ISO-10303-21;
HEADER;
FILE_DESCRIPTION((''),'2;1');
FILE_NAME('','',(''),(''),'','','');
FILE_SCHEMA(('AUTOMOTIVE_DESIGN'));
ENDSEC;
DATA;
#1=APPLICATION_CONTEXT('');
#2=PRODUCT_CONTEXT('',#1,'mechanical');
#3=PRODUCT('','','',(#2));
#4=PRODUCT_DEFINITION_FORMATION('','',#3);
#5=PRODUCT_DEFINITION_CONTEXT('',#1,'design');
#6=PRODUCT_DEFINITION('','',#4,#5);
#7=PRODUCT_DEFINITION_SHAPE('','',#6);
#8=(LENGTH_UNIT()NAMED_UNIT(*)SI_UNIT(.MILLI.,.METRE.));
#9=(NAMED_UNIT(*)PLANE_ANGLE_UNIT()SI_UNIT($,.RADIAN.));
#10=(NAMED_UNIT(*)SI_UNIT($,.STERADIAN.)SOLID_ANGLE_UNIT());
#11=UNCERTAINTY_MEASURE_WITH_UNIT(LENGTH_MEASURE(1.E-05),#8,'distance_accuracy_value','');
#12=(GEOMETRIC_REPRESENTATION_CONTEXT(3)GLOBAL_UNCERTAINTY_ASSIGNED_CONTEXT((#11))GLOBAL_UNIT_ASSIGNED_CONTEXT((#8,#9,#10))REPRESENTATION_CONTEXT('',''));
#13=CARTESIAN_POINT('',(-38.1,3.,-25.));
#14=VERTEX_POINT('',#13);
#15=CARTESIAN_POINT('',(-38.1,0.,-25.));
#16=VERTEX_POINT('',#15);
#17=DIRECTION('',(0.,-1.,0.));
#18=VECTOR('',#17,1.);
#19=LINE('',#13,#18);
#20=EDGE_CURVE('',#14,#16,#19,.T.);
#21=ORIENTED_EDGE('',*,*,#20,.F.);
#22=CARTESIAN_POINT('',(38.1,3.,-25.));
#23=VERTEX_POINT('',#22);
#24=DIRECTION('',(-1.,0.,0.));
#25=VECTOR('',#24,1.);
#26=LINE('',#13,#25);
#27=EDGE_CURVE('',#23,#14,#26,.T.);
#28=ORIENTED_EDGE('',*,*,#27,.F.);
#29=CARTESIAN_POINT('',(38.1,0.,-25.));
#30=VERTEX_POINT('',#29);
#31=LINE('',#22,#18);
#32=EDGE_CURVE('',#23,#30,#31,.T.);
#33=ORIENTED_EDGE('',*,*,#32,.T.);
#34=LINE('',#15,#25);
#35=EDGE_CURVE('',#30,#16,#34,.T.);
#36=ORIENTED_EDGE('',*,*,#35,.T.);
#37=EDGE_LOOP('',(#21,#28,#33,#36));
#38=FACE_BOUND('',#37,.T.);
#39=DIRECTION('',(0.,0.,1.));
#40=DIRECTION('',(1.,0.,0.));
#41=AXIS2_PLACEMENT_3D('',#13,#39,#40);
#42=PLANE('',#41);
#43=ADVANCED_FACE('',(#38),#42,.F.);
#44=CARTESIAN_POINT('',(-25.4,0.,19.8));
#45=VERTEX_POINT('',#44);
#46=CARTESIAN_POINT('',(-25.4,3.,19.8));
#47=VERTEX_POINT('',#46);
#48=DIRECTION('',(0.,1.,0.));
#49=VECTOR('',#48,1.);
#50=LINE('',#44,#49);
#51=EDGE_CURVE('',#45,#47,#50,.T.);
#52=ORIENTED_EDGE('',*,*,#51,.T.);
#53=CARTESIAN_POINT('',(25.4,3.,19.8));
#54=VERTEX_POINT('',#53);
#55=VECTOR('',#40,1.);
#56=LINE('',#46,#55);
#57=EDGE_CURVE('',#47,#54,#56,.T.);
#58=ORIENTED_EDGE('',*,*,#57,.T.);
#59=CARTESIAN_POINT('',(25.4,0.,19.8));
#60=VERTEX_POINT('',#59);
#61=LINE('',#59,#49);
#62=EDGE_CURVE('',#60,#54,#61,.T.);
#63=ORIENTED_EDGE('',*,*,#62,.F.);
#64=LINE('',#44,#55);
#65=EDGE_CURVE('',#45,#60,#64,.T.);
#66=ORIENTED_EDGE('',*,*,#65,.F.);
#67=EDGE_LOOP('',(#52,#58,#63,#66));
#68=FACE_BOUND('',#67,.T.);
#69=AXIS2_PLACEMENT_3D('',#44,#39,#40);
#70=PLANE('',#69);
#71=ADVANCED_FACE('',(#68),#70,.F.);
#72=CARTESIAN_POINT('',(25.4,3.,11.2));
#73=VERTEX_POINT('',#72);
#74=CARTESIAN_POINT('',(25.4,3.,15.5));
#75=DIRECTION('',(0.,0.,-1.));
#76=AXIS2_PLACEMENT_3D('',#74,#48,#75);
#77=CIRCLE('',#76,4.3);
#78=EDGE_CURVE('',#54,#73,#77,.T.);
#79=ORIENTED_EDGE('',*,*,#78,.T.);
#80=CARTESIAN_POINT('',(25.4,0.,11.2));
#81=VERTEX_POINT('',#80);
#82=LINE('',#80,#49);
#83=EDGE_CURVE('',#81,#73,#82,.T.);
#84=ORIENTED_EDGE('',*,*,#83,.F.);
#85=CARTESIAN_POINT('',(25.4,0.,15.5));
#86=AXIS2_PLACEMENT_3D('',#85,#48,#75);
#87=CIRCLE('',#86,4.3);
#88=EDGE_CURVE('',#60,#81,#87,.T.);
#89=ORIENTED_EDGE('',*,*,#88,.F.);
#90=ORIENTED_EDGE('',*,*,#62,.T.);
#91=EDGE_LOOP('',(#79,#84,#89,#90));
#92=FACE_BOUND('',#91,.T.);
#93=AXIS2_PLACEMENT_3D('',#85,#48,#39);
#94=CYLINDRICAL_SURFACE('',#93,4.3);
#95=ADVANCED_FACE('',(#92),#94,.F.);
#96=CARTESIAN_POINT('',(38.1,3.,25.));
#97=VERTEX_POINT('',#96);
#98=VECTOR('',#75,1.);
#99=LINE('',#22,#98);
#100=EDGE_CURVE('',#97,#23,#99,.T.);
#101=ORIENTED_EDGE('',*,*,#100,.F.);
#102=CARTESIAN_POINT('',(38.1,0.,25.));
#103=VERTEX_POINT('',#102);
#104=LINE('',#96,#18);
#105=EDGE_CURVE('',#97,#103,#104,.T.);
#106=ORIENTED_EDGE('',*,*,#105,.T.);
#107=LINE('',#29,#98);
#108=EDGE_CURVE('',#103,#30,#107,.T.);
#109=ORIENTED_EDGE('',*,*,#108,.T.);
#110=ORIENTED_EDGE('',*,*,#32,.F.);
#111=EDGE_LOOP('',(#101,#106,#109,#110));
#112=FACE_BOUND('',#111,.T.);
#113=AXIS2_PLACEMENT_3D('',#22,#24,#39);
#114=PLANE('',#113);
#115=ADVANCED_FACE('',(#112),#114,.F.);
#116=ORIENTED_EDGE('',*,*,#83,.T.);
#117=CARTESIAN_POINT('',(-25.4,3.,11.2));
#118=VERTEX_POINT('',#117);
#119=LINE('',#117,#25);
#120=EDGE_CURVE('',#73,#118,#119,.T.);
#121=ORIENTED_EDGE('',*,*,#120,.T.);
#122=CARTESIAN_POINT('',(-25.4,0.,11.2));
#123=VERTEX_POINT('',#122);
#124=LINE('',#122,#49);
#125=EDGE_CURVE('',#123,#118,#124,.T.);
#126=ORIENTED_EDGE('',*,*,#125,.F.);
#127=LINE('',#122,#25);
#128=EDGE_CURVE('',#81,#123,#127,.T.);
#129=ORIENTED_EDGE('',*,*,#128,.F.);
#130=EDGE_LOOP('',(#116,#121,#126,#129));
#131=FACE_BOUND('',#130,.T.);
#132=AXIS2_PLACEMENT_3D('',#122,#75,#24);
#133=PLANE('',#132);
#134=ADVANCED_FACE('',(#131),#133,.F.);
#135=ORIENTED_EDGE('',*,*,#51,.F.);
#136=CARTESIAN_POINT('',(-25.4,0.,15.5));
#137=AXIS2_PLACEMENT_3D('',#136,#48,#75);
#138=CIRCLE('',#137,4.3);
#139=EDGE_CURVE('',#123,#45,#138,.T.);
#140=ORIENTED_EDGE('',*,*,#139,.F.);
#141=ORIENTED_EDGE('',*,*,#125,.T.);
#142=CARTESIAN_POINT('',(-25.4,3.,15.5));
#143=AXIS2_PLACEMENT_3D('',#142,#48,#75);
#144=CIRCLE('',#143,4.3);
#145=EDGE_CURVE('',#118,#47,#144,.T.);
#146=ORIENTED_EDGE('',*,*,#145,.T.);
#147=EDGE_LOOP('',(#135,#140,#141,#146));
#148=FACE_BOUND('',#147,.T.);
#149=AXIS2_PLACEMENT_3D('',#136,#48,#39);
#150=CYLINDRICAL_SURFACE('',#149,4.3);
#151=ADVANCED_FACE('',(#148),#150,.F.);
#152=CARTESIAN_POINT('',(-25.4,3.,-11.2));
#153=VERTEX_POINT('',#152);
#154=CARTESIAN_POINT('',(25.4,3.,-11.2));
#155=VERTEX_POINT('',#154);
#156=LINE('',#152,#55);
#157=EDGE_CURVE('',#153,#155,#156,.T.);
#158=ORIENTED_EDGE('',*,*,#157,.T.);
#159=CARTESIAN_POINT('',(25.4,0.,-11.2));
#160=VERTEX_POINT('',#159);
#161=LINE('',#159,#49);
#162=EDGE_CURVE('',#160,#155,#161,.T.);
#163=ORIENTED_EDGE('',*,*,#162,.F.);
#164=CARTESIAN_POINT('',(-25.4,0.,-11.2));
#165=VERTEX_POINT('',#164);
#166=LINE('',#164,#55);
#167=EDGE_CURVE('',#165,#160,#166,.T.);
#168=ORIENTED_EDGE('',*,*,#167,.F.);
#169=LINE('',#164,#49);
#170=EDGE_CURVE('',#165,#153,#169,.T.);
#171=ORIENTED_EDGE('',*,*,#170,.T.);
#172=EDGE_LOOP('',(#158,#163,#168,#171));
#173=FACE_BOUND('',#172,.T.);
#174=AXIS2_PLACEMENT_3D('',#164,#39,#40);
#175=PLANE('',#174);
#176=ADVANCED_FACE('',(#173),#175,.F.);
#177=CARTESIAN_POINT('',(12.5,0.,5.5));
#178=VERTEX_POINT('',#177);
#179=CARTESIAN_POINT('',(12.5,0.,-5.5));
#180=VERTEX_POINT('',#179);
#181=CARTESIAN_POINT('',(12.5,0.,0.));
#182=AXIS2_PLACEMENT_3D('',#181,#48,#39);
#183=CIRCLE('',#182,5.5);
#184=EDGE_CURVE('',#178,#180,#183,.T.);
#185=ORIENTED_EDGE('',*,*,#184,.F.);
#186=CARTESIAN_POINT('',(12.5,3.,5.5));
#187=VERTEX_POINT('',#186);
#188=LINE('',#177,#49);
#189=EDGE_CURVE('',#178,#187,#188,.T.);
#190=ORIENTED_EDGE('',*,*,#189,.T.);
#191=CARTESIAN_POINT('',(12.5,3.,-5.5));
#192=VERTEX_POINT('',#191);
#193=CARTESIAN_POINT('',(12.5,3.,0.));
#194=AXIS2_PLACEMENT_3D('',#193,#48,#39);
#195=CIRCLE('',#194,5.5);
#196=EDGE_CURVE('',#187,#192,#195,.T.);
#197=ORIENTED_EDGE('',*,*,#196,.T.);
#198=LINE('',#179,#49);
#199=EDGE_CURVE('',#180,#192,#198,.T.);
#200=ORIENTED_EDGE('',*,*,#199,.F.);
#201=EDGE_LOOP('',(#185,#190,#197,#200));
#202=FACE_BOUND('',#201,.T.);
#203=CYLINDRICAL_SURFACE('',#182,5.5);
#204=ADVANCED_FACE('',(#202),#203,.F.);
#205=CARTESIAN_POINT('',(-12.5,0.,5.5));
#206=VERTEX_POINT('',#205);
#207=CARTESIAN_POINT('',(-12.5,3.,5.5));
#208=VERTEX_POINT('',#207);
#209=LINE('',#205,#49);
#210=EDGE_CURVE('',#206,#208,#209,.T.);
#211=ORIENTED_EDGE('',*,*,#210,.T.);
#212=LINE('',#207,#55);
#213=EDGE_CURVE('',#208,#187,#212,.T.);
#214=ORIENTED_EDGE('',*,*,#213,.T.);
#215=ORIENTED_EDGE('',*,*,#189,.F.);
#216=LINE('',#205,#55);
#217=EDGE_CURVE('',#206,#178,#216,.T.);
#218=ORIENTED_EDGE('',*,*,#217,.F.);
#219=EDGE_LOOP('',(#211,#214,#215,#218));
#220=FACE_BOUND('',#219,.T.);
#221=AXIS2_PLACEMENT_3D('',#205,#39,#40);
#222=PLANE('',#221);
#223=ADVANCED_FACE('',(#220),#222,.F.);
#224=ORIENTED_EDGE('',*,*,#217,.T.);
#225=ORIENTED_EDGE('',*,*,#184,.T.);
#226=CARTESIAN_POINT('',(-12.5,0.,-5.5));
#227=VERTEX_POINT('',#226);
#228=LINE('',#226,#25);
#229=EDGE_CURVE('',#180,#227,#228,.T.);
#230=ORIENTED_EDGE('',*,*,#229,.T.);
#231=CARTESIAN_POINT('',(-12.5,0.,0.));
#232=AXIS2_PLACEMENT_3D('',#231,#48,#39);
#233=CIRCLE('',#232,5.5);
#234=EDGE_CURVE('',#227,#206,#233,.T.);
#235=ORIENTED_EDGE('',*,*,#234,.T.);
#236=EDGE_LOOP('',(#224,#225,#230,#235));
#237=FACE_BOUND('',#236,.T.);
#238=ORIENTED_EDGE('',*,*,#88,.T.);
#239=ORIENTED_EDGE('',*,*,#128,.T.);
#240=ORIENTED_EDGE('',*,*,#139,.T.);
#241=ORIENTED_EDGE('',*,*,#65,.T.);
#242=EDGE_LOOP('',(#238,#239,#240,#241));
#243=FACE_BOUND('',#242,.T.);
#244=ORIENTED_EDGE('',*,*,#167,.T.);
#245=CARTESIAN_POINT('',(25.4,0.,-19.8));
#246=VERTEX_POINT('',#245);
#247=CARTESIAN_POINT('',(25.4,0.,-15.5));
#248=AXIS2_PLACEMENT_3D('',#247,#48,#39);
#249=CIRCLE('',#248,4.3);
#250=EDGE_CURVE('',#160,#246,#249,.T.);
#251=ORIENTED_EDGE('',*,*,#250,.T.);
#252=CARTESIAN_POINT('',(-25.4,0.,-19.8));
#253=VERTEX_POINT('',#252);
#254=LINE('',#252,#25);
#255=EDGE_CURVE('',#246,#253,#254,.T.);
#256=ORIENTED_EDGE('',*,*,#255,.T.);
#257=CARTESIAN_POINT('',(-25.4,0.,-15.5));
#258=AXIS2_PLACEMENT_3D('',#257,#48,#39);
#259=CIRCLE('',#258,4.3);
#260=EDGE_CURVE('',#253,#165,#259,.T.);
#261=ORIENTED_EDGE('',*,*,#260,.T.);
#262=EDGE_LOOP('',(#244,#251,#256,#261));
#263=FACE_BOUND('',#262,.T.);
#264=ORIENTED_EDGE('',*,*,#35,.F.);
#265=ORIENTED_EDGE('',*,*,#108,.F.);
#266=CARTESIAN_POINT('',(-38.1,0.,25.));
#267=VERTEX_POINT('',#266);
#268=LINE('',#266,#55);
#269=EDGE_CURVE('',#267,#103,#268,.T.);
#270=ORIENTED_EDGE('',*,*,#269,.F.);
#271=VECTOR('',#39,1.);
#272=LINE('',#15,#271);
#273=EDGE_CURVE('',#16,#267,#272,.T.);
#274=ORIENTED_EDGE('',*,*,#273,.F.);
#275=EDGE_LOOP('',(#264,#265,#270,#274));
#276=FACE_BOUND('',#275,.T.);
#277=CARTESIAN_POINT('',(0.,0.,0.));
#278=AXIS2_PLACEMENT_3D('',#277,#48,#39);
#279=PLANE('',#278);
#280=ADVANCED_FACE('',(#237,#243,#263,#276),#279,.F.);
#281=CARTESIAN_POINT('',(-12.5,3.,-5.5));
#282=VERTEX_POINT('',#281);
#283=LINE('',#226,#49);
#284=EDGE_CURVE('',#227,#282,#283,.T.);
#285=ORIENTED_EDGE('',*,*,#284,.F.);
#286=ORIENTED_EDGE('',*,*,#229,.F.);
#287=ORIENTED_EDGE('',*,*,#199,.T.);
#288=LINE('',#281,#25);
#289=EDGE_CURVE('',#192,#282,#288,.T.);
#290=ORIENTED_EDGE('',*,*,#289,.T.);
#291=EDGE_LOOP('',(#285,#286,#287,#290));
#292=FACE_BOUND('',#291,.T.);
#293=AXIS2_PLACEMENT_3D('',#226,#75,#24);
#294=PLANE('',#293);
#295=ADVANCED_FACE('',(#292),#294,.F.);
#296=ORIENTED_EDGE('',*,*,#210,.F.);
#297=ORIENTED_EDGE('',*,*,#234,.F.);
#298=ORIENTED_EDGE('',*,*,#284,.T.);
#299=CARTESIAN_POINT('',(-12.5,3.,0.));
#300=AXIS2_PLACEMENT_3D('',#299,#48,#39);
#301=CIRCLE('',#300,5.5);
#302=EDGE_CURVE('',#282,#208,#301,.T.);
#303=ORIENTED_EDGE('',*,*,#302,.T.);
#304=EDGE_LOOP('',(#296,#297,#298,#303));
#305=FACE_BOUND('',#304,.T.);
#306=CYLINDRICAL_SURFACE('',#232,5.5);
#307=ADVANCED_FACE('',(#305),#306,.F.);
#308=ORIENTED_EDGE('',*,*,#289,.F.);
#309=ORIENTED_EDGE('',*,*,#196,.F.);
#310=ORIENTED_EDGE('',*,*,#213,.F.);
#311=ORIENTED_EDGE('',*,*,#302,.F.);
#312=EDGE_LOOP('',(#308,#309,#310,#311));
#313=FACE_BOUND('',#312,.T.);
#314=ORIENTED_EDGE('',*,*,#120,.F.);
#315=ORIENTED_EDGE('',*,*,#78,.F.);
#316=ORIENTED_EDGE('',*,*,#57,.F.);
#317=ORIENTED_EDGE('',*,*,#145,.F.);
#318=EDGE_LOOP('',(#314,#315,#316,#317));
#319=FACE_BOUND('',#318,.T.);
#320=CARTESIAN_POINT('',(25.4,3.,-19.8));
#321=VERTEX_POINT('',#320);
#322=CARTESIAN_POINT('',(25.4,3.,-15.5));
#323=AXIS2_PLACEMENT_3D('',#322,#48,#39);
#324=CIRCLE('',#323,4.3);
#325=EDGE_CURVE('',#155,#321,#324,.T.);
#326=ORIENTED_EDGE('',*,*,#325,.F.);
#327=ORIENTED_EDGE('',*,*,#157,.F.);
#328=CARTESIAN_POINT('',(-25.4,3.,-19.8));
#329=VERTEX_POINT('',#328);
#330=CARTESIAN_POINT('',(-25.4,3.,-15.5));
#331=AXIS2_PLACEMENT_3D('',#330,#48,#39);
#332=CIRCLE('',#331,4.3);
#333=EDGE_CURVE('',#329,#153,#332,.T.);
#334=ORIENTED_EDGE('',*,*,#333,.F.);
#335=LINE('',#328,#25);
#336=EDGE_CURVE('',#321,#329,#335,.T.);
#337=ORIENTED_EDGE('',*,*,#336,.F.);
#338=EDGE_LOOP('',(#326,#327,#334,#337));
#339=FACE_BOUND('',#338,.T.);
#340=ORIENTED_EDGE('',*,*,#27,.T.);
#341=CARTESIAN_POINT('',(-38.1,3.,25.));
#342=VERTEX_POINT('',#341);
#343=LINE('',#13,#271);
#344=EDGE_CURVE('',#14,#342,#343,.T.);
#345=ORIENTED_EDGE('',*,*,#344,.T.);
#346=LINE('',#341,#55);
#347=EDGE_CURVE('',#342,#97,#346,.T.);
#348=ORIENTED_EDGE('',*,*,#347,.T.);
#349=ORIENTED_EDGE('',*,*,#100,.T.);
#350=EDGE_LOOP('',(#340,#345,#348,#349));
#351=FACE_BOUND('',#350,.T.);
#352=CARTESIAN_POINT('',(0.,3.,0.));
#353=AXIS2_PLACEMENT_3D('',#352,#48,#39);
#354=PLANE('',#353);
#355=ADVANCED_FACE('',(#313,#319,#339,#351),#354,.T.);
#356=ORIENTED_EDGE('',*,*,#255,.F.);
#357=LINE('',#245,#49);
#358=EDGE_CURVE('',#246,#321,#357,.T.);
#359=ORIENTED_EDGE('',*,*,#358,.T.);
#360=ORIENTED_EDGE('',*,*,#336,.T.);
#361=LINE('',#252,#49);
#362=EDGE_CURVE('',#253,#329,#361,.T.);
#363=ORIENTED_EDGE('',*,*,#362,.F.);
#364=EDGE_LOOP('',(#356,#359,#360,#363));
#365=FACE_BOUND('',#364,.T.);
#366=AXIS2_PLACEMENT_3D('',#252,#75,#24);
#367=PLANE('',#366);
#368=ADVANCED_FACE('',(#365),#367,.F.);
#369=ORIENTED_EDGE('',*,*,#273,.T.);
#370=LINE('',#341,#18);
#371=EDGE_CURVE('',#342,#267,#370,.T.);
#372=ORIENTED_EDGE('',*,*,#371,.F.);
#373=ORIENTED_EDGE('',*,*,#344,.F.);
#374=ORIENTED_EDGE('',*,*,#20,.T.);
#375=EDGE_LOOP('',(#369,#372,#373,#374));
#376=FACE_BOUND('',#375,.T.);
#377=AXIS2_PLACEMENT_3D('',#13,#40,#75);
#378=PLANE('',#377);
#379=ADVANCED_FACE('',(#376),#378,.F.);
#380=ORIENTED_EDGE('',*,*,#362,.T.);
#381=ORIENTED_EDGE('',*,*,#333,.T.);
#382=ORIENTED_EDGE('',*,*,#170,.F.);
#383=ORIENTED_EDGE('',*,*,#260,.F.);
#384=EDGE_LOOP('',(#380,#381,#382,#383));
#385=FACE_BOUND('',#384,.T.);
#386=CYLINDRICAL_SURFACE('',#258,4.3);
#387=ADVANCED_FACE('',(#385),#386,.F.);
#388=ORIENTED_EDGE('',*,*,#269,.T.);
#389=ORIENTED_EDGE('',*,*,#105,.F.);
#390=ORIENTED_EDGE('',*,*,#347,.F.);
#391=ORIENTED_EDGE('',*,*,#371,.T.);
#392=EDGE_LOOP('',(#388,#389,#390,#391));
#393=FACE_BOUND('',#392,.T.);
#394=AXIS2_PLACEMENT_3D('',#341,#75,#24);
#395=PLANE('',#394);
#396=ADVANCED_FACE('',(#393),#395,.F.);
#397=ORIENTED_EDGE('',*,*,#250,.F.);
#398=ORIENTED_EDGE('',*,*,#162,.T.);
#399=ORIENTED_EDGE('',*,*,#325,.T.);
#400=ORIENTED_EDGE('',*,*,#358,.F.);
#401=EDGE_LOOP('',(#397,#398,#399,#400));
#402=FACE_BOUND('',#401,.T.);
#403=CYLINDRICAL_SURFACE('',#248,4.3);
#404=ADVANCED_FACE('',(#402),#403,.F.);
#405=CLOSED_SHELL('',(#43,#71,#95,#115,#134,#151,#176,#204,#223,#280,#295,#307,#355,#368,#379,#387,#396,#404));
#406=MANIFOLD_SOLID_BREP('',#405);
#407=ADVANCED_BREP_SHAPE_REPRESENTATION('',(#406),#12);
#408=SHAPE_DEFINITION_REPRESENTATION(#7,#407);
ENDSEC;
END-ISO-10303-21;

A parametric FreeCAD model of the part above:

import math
import FreeCAD as App
import Part
import Sketcher
from FreeCAD import Vector
Q = App.Units.Quantity


def add_polygon(sketch, points):
    """Adds a closed chain of lines whose ends are joined by coincident constraints."""
    first, n = sketch.GeometryCount, len(points)
    for a, b in zip(points, points[1:] + points[:1]):
        sketch.addGeometry(Part.LineSegment(App.Vector(*a, 0), App.Vector(*b, 0)), False)
    for i in range(n):
        sketch.addConstraint(Sketcher.Constraint("Coincident", first + i, 2, first + (i + 1) % n, 1))

doc = App.newDocument("Part")
body = doc.addObject("PartDesign::Body", "Body")

# Sketch on XZ plane
sketch1 = doc.addObject("Sketcher::SketchObject", "Sketch")
body.addObject(sketch1)
sketch1.AttachmentSupport = (doc.XZ_Plane, [""])
sketch1.MapMode = "FlatFace"
add_polygon(sketch1, [(-38, -25), (-38, 25), (38, 25), (38, -25)])  # lines 0-3
sketch1.addConstraint(Sketcher.Constraint("Vertical", 0))
sketch1.addConstraint(Sketcher.Constraint("Horizontal", 1))
sketch1.addConstraint(Sketcher.Constraint("Vertical", 2))
sketch1.addConstraint(Sketcher.Constraint("Horizontal", 3))
sketch1.addConstraint(Sketcher.Constraint("Symmetric", 0, 2, 2, 2, -1, 1))
sketch1.addConstraint(Sketcher.Constraint("DistanceY", 0, 1, 0, 2, Q("50 mm")))
sketch1.addConstraint(Sketcher.Constraint("DistanceX", 1, 1, 1, 2, Q("76.2 mm")))
pad1 = doc.addObject("PartDesign::Pad", "Pad")
body.addObject(pad1)
pad1.Profile = sketch1
pad1.Length = 3
pad1.Reversed = True

# Sketch on XZ plane
sketch2 = doc.addObject("Sketcher::SketchObject", "Sketch001")
body.addObject(sketch2)
sketch2.AttachmentSupport = (doc.XZ_Plane, [""])
sketch2.MapMode = "FlatFace"
sketch2.AttachmentOffset = App.Placement(Vector(0, 0, -3), App.Rotation())
sketch2.addGeometry(Part.LineSegment(Vector(25.4, -19.8, 0), Vector(-25.4, -19.8, 0)), False)
sketch2.addGeometry(Part.ArcOfCircle(Part.Circle(Vector(-25.4, -15.5, 0), Vector(0, 0, 1), 4.3), math.radians(90), math.radians(270)), False)
sketch2.addGeometry(Part.LineSegment(Vector(-25.4, -11.2, 0), Vector(25.4, -11.2, 0)), False)
sketch2.addGeometry(Part.ArcOfCircle(Part.Circle(Vector(25.4, -15.5, 0), Vector(0, 0, 1), 4.3), math.radians(-90), math.radians(90)), False)
sketch2.addGeometry(Part.LineSegment(Vector(-25.4, 19.8, 0), Vector(25.4, 19.8, 0)), False)
sketch2.addGeometry(Part.ArcOfCircle(Part.Circle(Vector(25.4, 15.5, 0), Vector(0, 0, 1), 4.3), math.radians(-90), math.radians(90)), False)
sketch2.addGeometry(Part.LineSegment(Vector(25.4, 11.2, 0), Vector(-25.4, 11.2, 0)), False)
sketch2.addGeometry(Part.ArcOfCircle(Part.Circle(Vector(-25.4, 15.5, 0), Vector(0, 0, 1), 4.3), math.radians(90), math.radians(270)), False)
sketch2.addGeometry(Part.LineSegment(Vector(12.5, -5.5, 0), Vector(-12.5, -5.5, 0)), False)
sketch2.addGeometry(Part.ArcOfCircle(Part.Circle(Vector(-12.5, 0, 0), Vector(0, 0, 1), 5.5), math.radians(90), math.radians(270)), False)
sketch2.addGeometry(Part.LineSegment(Vector(-12.5, 5.5, 0), Vector(12.5, 5.5, 0)), False)
sketch2.addGeometry(Part.ArcOfCircle(Part.Circle(Vector(12.5, 0, 0), Vector(0, 0, 1), 5.5), math.radians(-90), math.radians(90)), False)
sketch2.addConstraint(Sketcher.Constraint("Tangent", 0, 2, 1, 2))
sketch2.addConstraint(Sketcher.Constraint("Tangent", 1, 1, 2, 1))
sketch2.addConstraint(Sketcher.Constraint("Tangent", 2, 2, 3, 2))
sketch2.addConstraint(Sketcher.Constraint("Tangent", 3, 1, 0, 1))
sketch2.addConstraint(Sketcher.Constraint("Tangent", 4, 2, 5, 2))
sketch2.addConstraint(Sketcher.Constraint("Tangent", 5, 1, 6, 1))
sketch2.addConstraint(Sketcher.Constraint("Tangent", 6, 2, 7, 2))
sketch2.addConstraint(Sketcher.Constraint("Tangent", 7, 1, 4, 1))
sketch2.addConstraint(Sketcher.Constraint("Tangent", 8, 2, 9, 2))
sketch2.addConstraint(Sketcher.Constraint("Tangent", 9, 1, 10, 1))
sketch2.addConstraint(Sketcher.Constraint("Tangent", 10, 2, 11, 2))
sketch2.addConstraint(Sketcher.Constraint("Tangent", 11, 1, 8, 1))
sketch2.addConstraint(Sketcher.Constraint("Horizontal", 0))
sketch2.addConstraint(Sketcher.Constraint("Horizontal", 2))
sketch2.addConstraint(Sketcher.Constraint("Horizontal", 4))
sketch2.addConstraint(Sketcher.Constraint("Horizontal", 6))
sketch2.addConstraint(Sketcher.Constraint("Horizontal", 8))
sketch2.addConstraint(Sketcher.Constraint("Horizontal", 10))
sketch2.addConstraint(Sketcher.Constraint("Equal", 3, 5))
sketch2.addConstraint(Sketcher.Constraint("Symmetric", 1, 3, 5, 3, -1, 1))
sketch2.addConstraint(Sketcher.Constraint("Symmetric", 9, 3, 11, 3, -1, 1))
sketch2.addConstraint(Sketcher.Constraint("Vertical", 3, 3, 5, 3))
sketch2.addConstraint(Sketcher.Constraint("Vertical", 1, 3, 7, 3))
sketch2.addConstraint(Sketcher.Constraint("Radius", 1, Q("4.3 mm")))
sketch2.addConstraint(Sketcher.Constraint("Radius", 9, Q("5.5 mm")))
sketch2.addConstraint(Sketcher.Constraint("DistanceX", 8, 2, 8, 1, Q("25 mm")))
sketch2.addConstraint(Sketcher.Constraint("DistanceX", 0, 2, 0, 1, Q("50.8 mm")))
sketch2.addConstraint(Sketcher.Constraint("DistanceY", 3, 3, 5, 3, Q("31 mm")))
pocket1 = doc.addObject("PartDesign::Pocket", "Pocket")
body.addObject(pocket1)
pocket1.Profile = sketch2
pocket1.Type = "ThroughAll"
pocket1.Reversed = True

doc.recompute()
